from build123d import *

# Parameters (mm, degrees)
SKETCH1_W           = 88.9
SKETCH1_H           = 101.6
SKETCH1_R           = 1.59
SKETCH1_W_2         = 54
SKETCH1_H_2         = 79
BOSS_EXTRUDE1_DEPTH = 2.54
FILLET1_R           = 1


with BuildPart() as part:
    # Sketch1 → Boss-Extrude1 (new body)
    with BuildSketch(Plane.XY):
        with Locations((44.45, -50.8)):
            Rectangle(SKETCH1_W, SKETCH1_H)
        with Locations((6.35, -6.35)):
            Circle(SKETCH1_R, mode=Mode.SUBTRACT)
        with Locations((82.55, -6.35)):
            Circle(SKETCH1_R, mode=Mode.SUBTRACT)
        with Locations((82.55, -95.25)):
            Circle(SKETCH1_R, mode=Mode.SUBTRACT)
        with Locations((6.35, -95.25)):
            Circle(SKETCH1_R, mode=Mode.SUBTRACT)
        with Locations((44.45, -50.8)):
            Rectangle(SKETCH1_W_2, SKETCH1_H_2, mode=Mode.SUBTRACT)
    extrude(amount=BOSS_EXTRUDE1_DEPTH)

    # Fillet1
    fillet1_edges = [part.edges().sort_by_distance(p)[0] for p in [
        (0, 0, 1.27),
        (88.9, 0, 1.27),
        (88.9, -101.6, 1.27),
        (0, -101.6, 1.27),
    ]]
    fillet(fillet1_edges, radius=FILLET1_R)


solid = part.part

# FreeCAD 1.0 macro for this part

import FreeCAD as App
import Part
import Sketcher

V = App.Vector


def edges_at(feature, points):
    """Names of the edges that pass closest to the given points."""
    edges = feature.Shape.Edges
    near = lambda p: min(range(len(edges)), key=lambda i: edges[i].distToShape(Part.Vertex(*p))[0])
    return sorted({f"Edge{near(p) + 1}" for p in points})


def add_polygon(sketch, points):
    """Adds a closed chain of lines whose ends are joined by coincident constraints."""
    first, n = sketch.GeometryCount, len(points)
    for a, b in zip(points, points[1:] + points[:1]):
        sketch.addGeometry(Part.LineSegment(App.Vector(*a, 0), App.Vector(*b, 0)), False)
    for i in range(n):
        sketch.addConstraint(Sketcher.Constraint("Coincident", first + i, 2, first + (i + 1) % n, 1))

doc = App.newDocument("Part")
params = doc.addObject("Spreadsheet::Sheet", "Params")
for row, (alias, value) in enumerate([
    ("sketch1_diameter", "3.18 mm"),
    ("sketch1_width", "54 mm"),
    ("sketch1_height", "79 mm"),
    ("sketch1_width2", "88.9 mm"),
    ("sketch1_height2", "101.6 mm"),
    ("pad1_length", "2.54 mm"),
    ("fillet_radius", "1 mm"),
], start=1):
    params.set(f"A{row}", alias)
    params.set(f"B{row}", "=" + value)
    params.setAlias(f"B{row}", alias)

body = doc.addObject("PartDesign::Body", "Body")

sketch1 = body.newObject("Sketcher::SketchObject", "Sketch")
sketch1.AttachmentSupport = (doc.getObject("XY_Plane"), [""])
sketch1.MapMode = "FlatFace"
add_polygon(sketch1, [(0, 0), (0, -101.6), (88.9, -101.6), (88.9, 0)])
sketch1.addGeometry(Part.Circle(V(6.3, -95.2, 0), V(0, 0, 1), 1.6), False)
sketch1.addGeometry(Part.Circle(V(82.5, -95.2, 0), V(0, 0, 1), 1.6), False)
sketch1.addGeometry(Part.Circle(V(6.3, -6.3, 0), V(0, 0, 1), 1.6), False)
add_polygon(sketch1, [(71.5, -90.3), (17.4, -90.3), (17.4, -11.3), (71.5, -11.3)])
sketch1.addGeometry(Part.Circle(V(82.5, -6.3, 0), V(0, 0, 1), 1.6), False)
sketch1.addConstraint([
    Sketcher.Constraint("Vertical", 0),
    Sketcher.Constraint("Horizontal", 1),
    Sketcher.Constraint("Vertical", 2),
    Sketcher.Constraint("Horizontal", 3),
    Sketcher.Constraint("Horizontal", 7),
    Sketcher.Constraint("Vertical", 8),
    Sketcher.Constraint("Horizontal", 9),
    Sketcher.Constraint("Vertical", 10),
    Sketcher.Constraint("Coincident", 3, 2, -1, 1),
    Sketcher.Constraint("Equal", 4, 5),
    Sketcher.Constraint("Equal", 5, 6),
    Sketcher.Constraint("Equal", 6, 11),
    Sketcher.Constraint("Horizontal", 4, 3, 5, 3),
    Sketcher.Constraint("Horizontal", 6, 3, 11, 3),
    Sketcher.Constraint("Vertical", 4, 3, 6, 3),
    Sketcher.Constraint("Vertical", 5, 3, 11, 3),
    Sketcher.Constraint("Diameter", 4, 3.18),
    Sketcher.Constraint("DistanceX", 7, 2, 7, 1, 54.0),
    Sketcher.Constraint("DistanceY", 8, 1, 8, 2, 79.0),
    Sketcher.Constraint("DistanceX", 1, 1, 1, 2, 88.9),
    Sketcher.Constraint("DistanceY", 0, 2, 0, 1, 101.6),
    Sketcher.Constraint("DistanceY", 7, 2, -1, 1, 90.3),
    Sketcher.Constraint("DistanceX", 4, 3, 5, 3, 76.2),
    Sketcher.Constraint("DistanceY", 4, 3, 6, 3, 88.9),
    Sketcher.Constraint("DistanceX", 4, 3, 7, 2, 11.1),
    Sketcher.Constraint("DistanceX", -1, 1, 4, 3, 6.35),
    Sketcher.Constraint("DistanceY", 4, 3, -1, 1, 95.25),
])
sketch1.setExpression("Constraints[24]", "Params.sketch1_diameter")
sketch1.setExpression("Constraints[25]", "Params.sketch1_width")
sketch1.setExpression("Constraints[26]", "Params.sketch1_height")
sketch1.setExpression("Constraints[27]", "Params.sketch1_width2")
sketch1.setExpression("Constraints[28]", "Params.sketch1_height2")
pad1 = body.newObject("PartDesign::Pad", "Pad")
pad1.Profile = sketch1
pad1.setExpression("Length", "Params.pad1_length")
doc.recompute()

fillet = body.newObject("PartDesign::Fillet", "Fillet")
fillet.Base = (pad1, edges_at(pad1, [
    (0, 0, 1.27),
    (88.9, 0, 1.27),
    (88.9, -101.6, 1.27),
    (0, -101.6, 1.27),
]))
fillet.setExpression("Radius", "Params.fillet_radius")

doc.recompute()
